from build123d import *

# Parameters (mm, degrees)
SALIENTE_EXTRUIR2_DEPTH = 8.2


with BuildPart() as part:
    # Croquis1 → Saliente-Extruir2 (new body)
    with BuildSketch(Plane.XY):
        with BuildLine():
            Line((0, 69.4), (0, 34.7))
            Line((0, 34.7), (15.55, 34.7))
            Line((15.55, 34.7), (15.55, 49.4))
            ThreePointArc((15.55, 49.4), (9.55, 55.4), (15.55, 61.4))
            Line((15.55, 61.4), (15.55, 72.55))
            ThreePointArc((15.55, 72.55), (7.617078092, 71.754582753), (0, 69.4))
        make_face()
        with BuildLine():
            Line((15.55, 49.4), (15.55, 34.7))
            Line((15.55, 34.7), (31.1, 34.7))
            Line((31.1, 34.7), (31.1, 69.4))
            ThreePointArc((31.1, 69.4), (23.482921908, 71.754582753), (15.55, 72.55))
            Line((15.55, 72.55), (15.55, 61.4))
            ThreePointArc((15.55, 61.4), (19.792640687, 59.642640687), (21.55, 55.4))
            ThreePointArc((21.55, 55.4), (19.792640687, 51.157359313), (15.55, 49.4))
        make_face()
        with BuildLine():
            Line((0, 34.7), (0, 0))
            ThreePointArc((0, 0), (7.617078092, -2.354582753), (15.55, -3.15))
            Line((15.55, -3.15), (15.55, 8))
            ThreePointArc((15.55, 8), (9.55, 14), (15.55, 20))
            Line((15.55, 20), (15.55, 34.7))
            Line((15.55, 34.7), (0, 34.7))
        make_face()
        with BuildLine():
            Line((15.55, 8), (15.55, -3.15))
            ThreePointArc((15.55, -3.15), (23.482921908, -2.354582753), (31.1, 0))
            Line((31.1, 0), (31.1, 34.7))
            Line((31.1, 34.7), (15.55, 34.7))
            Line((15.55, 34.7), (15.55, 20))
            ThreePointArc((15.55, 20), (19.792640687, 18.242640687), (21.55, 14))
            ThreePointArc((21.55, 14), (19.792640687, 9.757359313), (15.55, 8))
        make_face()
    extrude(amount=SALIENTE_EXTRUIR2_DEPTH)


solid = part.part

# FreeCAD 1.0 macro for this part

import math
import FreeCAD as App
import Part
import Sketcher

V = App.Vector
Q = App.Units.Quantity

doc = App.newDocument("Part")
body = doc.addObject("PartDesign::Body", "Body")

sketch1 = body.newObject("Sketcher::SketchObject", "Sketch")
sketch1.AttachmentSupport = (doc.getObject("XY_Plane"), [""])
sketch1.MapMode = "FlatFace"
sketch1.addGeometry([
    Part.LineSegment(V(0, 69, 0), V(0, 0, 0)),
    Part.ArcOfCircle(Part.Circle(V(16, 37, 0), V(0, 0, 1), 40), math.radians(-113), math.radians(-90)),
    Part.ArcOfCircle(Part.Circle(V(16, 37, 0), V(0, 0, 1), 40), math.radians(-90), math.radians(-67)),
    Part.LineSegment(V(31, 0, 0), V(31, 69, 0)),
    Part.ArcOfCircle(Part.Circle(V(16, 33, 0), V(0, 0, 1), 40), math.radians(67), math.radians(90)),
    Part.ArcOfCircle(Part.Circle(V(16, 33, 0), V(0, 0, 1), 40), math.radians(90), math.radians(113)),
    Part.ArcOfCircle(Part.Circle(V(16, 14, 0), V(0, 0, 1), 6), math.radians(90), math.radians(270)),
    Part.ArcOfCircle(Part.Circle(V(16, 14, 0), V(0, 0, 1), 6), math.radians(0), math.radians(90)),
    Part.ArcOfCircle(Part.Circle(V(16, 14, 0), V(0, 0, 1), 6), math.radians(-90), math.radians(0)),
    Part.ArcOfCircle(Part.Circle(V(16, 55, 0), V(0, 0, 1), 6), math.radians(90), math.radians(270)),
    Part.ArcOfCircle(Part.Circle(V(16, 55, 0), V(0, 0, 1), 6), math.radians(0), math.radians(90)),
    Part.ArcOfCircle(Part.Circle(V(16, 55, 0), V(0, 0, 1), 6), math.radians(-90), math.radians(0)),
], False)
sketch1.addConstraint([
    Sketcher.Constraint("Coincident", 0, 2, 1, 1),
    Sketcher.Constraint("Tangent", 1, 2, 2, 1),
    Sketcher.Constraint("Coincident", 2, 2, 3, 1),
    Sketcher.Constraint("Coincident", 3, 2, 4, 1),
    Sketcher.Constraint("Tangent", 4, 2, 5, 1),
    Sketcher.Constraint("Coincident", 5, 2, 0, 1),
    Sketcher.Constraint("Tangent", 6, 1, 7, 2),
    Sketcher.Constraint("Tangent", 7, 1, 8, 2),
    Sketcher.Constraint("Tangent", 8, 1, 6, 2),
    Sketcher.Constraint("Tangent", 9, 1, 10, 2),
    Sketcher.Constraint("Tangent", 10, 1, 11, 2),
    Sketcher.Constraint("Tangent", 11, 1, 9, 2),
    Sketcher.Constraint("Vertical", 0),
    Sketcher.Constraint("Vertical", 3),
    Sketcher.Constraint("Coincident", 0, 2, -1, 1),
    Sketcher.Constraint("Equal", 1, 2),
    Sketcher.Constraint("Equal", 2, 4),
    Sketcher.Constraint("Equal", 4, 5),
    Sketcher.Constraint("Equal", 8, 9),
    Sketcher.Constraint("PointOnObject", 2, 2, -1),
    Sketcher.Constraint("Horizontal", 3, 2, 5, 2),
    Sketcher.Constraint("Horizontal", 8, 3, 7, 1),
    Sketcher.Constraint("Horizontal", 11, 3, 10, 1),
    Sketcher.Constraint("Vertical", 5, 3, 6, 3),
    Sketcher.Constraint("Vertical", 8, 3, 9, 3),
    Sketcher.Constraint("Vertical", 11, 3, 1, 2),
    Sketcher.Constraint("Vertical", 1, 2, 4, 2),
    Sketcher.Constraint("Vertical", 4, 2, 6, 1),
    Sketcher.Constraint("Vertical", 6, 1, 8, 1),
    Sketcher.Constraint("Vertical", 8, 1, 9, 1),
    Sketcher.Constraint("Vertical", 9, 1, 11, 1),
    Sketcher.Constraint("Radius", 6, Q("6 mm")),
    Sketcher.Constraint("DistanceY", 0, 2, 0, 1, Q("69.4 mm")),
    Sketcher.Constraint("DistanceY", -1, 1, 6, 3, Q("14 mm")),
    Sketcher.Constraint("DistanceY", 9, 3, 3, 2, Q("14 mm")),
    Sketcher.Constraint("DistanceX", -1, 1, 2, 2, Q("31.1 mm")),
    Sketcher.Constraint("DistanceY", 1, 2, -1, 1, Q("3.15 mm")),
])
pad1 = body.newObject("PartDesign::Pad", "Pad")
pad1.Profile = sketch1
pad1.Length = 8.2

doc.recompute()
